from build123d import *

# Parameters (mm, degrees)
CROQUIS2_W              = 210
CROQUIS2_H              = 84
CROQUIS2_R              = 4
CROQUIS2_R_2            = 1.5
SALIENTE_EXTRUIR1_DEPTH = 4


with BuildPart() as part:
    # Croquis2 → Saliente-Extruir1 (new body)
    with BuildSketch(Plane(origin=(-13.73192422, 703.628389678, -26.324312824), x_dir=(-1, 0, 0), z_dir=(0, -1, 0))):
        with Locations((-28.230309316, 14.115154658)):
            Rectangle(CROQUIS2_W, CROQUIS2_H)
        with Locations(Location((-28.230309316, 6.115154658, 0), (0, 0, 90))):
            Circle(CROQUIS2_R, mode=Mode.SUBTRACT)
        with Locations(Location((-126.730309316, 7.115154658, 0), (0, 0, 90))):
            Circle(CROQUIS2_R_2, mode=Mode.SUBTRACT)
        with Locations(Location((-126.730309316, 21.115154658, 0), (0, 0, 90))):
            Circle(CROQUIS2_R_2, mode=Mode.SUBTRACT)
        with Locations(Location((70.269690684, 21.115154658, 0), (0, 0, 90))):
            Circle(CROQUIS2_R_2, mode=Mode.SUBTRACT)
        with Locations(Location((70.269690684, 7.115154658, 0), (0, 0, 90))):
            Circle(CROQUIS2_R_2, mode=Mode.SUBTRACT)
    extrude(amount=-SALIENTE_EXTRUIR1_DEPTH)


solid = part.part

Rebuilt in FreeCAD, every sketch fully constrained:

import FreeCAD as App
import Part
import Sketcher
from FreeCAD import Vector
Q = App.Units.Quantity

doc = App.newDocument("Part")
body = doc.addObject("PartDesign::Body", "Body")

sketch1 = doc.addObject("Sketcher::SketchObject", "Sketch")
body.addObject(sketch1)
sketch1.AttachmentSupport = (doc.XZ_Plane, [""])
sketch1.MapMode = "FlatFace"
sketch1.AttachmentOffset = App.Placement(Vector(0, 0, -703.62839), App.Rotation())
sketch1.addGeometry([
    Part.LineSegment(Vector(119.5, -82.4, 0), Vector(119.5, 1.6, 0)),
    Part.LineSegment(Vector(119.5, 1.6, 0), Vector(-90.5, 1.6, 0)),
    Part.LineSegment(Vector(-90.5, 1.6, 0), Vector(-90.5, -82.4, 0)),
    Part.LineSegment(Vector(-90.5, -82.4, 0), Vector(119.5, -82.4, 0)),
    Part.Circle(Vector(113, -33.4, 0), Vector(0, 0, 1), 1.5),
    Part.Circle(Vector(14.5, -32.4, 0), Vector(0, 0, 1), 4),
    Part.Circle(Vector(-84, -33.4, 0), Vector(0, 0, 1), 1.5),
    Part.Circle(Vector(113, -47.4, 0), Vector(0, 0, 1), 1.5),
    Part.Circle(Vector(-84, -47.4, 0), Vector(0, 0, 1), 1.5),
], False)
sketch1.addConstraint([
    Sketcher.Constraint("Coincident", 0, 2, 1, 1),
    Sketcher.Constraint("Coincident", 1, 2, 2, 1),
    Sketcher.Constraint("Coincident", 2, 2, 3, 1),
    Sketcher.Constraint("Coincident", 3, 2, 0, 1),
    Sketcher.Constraint("Vertical", 0),
    Sketcher.Constraint("Horizontal", 1),
    Sketcher.Constraint("Vertical", 2),
    Sketcher.Constraint("Horizontal", 3),
    Sketcher.Constraint("Equal", 4, 6),
    Sketcher.Constraint("Equal", 6, 7),
    Sketcher.Constraint("Equal", 7, 8),
    Sketcher.Constraint("Horizontal", 4, 3, 6, 3),
    Sketcher.Constraint("Horizontal", 7, 3, 8, 3),
    Sketcher.Constraint("Vertical", 4, 3, 7, 3),
    Sketcher.Constraint("Vertical", 6, 3, 8, 3),
    Sketcher.Constraint("Diameter", 4, Q("3 mm")),
    Sketcher.Constraint("Diameter", 5, Q("8 mm")),
    Sketcher.Constraint("DistanceX", 1, 2, 1, 1, Q("210 mm")),
    Sketcher.Constraint("DistanceY", 0, 1, 0, 2, Q("84 mm")),
    Sketcher.Constraint("DistanceY", 4, 3, 5, 3, Q("1 mm")),
    Sketcher.Constraint("DistanceX", 6, 3, 4, 3, Q("197 mm")),
    Sketcher.Constraint("DistanceY", 7, 3, 4, 3, Q("14 mm")),
    Sketcher.Constraint("DistanceY", 4, 3, 0, 2, Q("35 mm")),
    Sketcher.Constraint("DistanceX", 5, 3, 0, 2, Q("105 mm")),
    Sketcher.Constraint("DistanceX", 5, 3, 4, 3, Q("98.5 mm")),
    Sketcher.Constraint("DistanceX", -1, 1, 4, 3, Q("112.998385 mm")),
    Sketcher.Constraint("DistanceY", 4, 3, -1, 1, Q("33.439467 mm")),
])
pad1 = doc.addObject("PartDesign::Pad", "Pad")
body.addObject(pad1)
pad1.Profile = sketch1
pad1.Length = 4
pad1.Reversed = True

doc.recompute()
